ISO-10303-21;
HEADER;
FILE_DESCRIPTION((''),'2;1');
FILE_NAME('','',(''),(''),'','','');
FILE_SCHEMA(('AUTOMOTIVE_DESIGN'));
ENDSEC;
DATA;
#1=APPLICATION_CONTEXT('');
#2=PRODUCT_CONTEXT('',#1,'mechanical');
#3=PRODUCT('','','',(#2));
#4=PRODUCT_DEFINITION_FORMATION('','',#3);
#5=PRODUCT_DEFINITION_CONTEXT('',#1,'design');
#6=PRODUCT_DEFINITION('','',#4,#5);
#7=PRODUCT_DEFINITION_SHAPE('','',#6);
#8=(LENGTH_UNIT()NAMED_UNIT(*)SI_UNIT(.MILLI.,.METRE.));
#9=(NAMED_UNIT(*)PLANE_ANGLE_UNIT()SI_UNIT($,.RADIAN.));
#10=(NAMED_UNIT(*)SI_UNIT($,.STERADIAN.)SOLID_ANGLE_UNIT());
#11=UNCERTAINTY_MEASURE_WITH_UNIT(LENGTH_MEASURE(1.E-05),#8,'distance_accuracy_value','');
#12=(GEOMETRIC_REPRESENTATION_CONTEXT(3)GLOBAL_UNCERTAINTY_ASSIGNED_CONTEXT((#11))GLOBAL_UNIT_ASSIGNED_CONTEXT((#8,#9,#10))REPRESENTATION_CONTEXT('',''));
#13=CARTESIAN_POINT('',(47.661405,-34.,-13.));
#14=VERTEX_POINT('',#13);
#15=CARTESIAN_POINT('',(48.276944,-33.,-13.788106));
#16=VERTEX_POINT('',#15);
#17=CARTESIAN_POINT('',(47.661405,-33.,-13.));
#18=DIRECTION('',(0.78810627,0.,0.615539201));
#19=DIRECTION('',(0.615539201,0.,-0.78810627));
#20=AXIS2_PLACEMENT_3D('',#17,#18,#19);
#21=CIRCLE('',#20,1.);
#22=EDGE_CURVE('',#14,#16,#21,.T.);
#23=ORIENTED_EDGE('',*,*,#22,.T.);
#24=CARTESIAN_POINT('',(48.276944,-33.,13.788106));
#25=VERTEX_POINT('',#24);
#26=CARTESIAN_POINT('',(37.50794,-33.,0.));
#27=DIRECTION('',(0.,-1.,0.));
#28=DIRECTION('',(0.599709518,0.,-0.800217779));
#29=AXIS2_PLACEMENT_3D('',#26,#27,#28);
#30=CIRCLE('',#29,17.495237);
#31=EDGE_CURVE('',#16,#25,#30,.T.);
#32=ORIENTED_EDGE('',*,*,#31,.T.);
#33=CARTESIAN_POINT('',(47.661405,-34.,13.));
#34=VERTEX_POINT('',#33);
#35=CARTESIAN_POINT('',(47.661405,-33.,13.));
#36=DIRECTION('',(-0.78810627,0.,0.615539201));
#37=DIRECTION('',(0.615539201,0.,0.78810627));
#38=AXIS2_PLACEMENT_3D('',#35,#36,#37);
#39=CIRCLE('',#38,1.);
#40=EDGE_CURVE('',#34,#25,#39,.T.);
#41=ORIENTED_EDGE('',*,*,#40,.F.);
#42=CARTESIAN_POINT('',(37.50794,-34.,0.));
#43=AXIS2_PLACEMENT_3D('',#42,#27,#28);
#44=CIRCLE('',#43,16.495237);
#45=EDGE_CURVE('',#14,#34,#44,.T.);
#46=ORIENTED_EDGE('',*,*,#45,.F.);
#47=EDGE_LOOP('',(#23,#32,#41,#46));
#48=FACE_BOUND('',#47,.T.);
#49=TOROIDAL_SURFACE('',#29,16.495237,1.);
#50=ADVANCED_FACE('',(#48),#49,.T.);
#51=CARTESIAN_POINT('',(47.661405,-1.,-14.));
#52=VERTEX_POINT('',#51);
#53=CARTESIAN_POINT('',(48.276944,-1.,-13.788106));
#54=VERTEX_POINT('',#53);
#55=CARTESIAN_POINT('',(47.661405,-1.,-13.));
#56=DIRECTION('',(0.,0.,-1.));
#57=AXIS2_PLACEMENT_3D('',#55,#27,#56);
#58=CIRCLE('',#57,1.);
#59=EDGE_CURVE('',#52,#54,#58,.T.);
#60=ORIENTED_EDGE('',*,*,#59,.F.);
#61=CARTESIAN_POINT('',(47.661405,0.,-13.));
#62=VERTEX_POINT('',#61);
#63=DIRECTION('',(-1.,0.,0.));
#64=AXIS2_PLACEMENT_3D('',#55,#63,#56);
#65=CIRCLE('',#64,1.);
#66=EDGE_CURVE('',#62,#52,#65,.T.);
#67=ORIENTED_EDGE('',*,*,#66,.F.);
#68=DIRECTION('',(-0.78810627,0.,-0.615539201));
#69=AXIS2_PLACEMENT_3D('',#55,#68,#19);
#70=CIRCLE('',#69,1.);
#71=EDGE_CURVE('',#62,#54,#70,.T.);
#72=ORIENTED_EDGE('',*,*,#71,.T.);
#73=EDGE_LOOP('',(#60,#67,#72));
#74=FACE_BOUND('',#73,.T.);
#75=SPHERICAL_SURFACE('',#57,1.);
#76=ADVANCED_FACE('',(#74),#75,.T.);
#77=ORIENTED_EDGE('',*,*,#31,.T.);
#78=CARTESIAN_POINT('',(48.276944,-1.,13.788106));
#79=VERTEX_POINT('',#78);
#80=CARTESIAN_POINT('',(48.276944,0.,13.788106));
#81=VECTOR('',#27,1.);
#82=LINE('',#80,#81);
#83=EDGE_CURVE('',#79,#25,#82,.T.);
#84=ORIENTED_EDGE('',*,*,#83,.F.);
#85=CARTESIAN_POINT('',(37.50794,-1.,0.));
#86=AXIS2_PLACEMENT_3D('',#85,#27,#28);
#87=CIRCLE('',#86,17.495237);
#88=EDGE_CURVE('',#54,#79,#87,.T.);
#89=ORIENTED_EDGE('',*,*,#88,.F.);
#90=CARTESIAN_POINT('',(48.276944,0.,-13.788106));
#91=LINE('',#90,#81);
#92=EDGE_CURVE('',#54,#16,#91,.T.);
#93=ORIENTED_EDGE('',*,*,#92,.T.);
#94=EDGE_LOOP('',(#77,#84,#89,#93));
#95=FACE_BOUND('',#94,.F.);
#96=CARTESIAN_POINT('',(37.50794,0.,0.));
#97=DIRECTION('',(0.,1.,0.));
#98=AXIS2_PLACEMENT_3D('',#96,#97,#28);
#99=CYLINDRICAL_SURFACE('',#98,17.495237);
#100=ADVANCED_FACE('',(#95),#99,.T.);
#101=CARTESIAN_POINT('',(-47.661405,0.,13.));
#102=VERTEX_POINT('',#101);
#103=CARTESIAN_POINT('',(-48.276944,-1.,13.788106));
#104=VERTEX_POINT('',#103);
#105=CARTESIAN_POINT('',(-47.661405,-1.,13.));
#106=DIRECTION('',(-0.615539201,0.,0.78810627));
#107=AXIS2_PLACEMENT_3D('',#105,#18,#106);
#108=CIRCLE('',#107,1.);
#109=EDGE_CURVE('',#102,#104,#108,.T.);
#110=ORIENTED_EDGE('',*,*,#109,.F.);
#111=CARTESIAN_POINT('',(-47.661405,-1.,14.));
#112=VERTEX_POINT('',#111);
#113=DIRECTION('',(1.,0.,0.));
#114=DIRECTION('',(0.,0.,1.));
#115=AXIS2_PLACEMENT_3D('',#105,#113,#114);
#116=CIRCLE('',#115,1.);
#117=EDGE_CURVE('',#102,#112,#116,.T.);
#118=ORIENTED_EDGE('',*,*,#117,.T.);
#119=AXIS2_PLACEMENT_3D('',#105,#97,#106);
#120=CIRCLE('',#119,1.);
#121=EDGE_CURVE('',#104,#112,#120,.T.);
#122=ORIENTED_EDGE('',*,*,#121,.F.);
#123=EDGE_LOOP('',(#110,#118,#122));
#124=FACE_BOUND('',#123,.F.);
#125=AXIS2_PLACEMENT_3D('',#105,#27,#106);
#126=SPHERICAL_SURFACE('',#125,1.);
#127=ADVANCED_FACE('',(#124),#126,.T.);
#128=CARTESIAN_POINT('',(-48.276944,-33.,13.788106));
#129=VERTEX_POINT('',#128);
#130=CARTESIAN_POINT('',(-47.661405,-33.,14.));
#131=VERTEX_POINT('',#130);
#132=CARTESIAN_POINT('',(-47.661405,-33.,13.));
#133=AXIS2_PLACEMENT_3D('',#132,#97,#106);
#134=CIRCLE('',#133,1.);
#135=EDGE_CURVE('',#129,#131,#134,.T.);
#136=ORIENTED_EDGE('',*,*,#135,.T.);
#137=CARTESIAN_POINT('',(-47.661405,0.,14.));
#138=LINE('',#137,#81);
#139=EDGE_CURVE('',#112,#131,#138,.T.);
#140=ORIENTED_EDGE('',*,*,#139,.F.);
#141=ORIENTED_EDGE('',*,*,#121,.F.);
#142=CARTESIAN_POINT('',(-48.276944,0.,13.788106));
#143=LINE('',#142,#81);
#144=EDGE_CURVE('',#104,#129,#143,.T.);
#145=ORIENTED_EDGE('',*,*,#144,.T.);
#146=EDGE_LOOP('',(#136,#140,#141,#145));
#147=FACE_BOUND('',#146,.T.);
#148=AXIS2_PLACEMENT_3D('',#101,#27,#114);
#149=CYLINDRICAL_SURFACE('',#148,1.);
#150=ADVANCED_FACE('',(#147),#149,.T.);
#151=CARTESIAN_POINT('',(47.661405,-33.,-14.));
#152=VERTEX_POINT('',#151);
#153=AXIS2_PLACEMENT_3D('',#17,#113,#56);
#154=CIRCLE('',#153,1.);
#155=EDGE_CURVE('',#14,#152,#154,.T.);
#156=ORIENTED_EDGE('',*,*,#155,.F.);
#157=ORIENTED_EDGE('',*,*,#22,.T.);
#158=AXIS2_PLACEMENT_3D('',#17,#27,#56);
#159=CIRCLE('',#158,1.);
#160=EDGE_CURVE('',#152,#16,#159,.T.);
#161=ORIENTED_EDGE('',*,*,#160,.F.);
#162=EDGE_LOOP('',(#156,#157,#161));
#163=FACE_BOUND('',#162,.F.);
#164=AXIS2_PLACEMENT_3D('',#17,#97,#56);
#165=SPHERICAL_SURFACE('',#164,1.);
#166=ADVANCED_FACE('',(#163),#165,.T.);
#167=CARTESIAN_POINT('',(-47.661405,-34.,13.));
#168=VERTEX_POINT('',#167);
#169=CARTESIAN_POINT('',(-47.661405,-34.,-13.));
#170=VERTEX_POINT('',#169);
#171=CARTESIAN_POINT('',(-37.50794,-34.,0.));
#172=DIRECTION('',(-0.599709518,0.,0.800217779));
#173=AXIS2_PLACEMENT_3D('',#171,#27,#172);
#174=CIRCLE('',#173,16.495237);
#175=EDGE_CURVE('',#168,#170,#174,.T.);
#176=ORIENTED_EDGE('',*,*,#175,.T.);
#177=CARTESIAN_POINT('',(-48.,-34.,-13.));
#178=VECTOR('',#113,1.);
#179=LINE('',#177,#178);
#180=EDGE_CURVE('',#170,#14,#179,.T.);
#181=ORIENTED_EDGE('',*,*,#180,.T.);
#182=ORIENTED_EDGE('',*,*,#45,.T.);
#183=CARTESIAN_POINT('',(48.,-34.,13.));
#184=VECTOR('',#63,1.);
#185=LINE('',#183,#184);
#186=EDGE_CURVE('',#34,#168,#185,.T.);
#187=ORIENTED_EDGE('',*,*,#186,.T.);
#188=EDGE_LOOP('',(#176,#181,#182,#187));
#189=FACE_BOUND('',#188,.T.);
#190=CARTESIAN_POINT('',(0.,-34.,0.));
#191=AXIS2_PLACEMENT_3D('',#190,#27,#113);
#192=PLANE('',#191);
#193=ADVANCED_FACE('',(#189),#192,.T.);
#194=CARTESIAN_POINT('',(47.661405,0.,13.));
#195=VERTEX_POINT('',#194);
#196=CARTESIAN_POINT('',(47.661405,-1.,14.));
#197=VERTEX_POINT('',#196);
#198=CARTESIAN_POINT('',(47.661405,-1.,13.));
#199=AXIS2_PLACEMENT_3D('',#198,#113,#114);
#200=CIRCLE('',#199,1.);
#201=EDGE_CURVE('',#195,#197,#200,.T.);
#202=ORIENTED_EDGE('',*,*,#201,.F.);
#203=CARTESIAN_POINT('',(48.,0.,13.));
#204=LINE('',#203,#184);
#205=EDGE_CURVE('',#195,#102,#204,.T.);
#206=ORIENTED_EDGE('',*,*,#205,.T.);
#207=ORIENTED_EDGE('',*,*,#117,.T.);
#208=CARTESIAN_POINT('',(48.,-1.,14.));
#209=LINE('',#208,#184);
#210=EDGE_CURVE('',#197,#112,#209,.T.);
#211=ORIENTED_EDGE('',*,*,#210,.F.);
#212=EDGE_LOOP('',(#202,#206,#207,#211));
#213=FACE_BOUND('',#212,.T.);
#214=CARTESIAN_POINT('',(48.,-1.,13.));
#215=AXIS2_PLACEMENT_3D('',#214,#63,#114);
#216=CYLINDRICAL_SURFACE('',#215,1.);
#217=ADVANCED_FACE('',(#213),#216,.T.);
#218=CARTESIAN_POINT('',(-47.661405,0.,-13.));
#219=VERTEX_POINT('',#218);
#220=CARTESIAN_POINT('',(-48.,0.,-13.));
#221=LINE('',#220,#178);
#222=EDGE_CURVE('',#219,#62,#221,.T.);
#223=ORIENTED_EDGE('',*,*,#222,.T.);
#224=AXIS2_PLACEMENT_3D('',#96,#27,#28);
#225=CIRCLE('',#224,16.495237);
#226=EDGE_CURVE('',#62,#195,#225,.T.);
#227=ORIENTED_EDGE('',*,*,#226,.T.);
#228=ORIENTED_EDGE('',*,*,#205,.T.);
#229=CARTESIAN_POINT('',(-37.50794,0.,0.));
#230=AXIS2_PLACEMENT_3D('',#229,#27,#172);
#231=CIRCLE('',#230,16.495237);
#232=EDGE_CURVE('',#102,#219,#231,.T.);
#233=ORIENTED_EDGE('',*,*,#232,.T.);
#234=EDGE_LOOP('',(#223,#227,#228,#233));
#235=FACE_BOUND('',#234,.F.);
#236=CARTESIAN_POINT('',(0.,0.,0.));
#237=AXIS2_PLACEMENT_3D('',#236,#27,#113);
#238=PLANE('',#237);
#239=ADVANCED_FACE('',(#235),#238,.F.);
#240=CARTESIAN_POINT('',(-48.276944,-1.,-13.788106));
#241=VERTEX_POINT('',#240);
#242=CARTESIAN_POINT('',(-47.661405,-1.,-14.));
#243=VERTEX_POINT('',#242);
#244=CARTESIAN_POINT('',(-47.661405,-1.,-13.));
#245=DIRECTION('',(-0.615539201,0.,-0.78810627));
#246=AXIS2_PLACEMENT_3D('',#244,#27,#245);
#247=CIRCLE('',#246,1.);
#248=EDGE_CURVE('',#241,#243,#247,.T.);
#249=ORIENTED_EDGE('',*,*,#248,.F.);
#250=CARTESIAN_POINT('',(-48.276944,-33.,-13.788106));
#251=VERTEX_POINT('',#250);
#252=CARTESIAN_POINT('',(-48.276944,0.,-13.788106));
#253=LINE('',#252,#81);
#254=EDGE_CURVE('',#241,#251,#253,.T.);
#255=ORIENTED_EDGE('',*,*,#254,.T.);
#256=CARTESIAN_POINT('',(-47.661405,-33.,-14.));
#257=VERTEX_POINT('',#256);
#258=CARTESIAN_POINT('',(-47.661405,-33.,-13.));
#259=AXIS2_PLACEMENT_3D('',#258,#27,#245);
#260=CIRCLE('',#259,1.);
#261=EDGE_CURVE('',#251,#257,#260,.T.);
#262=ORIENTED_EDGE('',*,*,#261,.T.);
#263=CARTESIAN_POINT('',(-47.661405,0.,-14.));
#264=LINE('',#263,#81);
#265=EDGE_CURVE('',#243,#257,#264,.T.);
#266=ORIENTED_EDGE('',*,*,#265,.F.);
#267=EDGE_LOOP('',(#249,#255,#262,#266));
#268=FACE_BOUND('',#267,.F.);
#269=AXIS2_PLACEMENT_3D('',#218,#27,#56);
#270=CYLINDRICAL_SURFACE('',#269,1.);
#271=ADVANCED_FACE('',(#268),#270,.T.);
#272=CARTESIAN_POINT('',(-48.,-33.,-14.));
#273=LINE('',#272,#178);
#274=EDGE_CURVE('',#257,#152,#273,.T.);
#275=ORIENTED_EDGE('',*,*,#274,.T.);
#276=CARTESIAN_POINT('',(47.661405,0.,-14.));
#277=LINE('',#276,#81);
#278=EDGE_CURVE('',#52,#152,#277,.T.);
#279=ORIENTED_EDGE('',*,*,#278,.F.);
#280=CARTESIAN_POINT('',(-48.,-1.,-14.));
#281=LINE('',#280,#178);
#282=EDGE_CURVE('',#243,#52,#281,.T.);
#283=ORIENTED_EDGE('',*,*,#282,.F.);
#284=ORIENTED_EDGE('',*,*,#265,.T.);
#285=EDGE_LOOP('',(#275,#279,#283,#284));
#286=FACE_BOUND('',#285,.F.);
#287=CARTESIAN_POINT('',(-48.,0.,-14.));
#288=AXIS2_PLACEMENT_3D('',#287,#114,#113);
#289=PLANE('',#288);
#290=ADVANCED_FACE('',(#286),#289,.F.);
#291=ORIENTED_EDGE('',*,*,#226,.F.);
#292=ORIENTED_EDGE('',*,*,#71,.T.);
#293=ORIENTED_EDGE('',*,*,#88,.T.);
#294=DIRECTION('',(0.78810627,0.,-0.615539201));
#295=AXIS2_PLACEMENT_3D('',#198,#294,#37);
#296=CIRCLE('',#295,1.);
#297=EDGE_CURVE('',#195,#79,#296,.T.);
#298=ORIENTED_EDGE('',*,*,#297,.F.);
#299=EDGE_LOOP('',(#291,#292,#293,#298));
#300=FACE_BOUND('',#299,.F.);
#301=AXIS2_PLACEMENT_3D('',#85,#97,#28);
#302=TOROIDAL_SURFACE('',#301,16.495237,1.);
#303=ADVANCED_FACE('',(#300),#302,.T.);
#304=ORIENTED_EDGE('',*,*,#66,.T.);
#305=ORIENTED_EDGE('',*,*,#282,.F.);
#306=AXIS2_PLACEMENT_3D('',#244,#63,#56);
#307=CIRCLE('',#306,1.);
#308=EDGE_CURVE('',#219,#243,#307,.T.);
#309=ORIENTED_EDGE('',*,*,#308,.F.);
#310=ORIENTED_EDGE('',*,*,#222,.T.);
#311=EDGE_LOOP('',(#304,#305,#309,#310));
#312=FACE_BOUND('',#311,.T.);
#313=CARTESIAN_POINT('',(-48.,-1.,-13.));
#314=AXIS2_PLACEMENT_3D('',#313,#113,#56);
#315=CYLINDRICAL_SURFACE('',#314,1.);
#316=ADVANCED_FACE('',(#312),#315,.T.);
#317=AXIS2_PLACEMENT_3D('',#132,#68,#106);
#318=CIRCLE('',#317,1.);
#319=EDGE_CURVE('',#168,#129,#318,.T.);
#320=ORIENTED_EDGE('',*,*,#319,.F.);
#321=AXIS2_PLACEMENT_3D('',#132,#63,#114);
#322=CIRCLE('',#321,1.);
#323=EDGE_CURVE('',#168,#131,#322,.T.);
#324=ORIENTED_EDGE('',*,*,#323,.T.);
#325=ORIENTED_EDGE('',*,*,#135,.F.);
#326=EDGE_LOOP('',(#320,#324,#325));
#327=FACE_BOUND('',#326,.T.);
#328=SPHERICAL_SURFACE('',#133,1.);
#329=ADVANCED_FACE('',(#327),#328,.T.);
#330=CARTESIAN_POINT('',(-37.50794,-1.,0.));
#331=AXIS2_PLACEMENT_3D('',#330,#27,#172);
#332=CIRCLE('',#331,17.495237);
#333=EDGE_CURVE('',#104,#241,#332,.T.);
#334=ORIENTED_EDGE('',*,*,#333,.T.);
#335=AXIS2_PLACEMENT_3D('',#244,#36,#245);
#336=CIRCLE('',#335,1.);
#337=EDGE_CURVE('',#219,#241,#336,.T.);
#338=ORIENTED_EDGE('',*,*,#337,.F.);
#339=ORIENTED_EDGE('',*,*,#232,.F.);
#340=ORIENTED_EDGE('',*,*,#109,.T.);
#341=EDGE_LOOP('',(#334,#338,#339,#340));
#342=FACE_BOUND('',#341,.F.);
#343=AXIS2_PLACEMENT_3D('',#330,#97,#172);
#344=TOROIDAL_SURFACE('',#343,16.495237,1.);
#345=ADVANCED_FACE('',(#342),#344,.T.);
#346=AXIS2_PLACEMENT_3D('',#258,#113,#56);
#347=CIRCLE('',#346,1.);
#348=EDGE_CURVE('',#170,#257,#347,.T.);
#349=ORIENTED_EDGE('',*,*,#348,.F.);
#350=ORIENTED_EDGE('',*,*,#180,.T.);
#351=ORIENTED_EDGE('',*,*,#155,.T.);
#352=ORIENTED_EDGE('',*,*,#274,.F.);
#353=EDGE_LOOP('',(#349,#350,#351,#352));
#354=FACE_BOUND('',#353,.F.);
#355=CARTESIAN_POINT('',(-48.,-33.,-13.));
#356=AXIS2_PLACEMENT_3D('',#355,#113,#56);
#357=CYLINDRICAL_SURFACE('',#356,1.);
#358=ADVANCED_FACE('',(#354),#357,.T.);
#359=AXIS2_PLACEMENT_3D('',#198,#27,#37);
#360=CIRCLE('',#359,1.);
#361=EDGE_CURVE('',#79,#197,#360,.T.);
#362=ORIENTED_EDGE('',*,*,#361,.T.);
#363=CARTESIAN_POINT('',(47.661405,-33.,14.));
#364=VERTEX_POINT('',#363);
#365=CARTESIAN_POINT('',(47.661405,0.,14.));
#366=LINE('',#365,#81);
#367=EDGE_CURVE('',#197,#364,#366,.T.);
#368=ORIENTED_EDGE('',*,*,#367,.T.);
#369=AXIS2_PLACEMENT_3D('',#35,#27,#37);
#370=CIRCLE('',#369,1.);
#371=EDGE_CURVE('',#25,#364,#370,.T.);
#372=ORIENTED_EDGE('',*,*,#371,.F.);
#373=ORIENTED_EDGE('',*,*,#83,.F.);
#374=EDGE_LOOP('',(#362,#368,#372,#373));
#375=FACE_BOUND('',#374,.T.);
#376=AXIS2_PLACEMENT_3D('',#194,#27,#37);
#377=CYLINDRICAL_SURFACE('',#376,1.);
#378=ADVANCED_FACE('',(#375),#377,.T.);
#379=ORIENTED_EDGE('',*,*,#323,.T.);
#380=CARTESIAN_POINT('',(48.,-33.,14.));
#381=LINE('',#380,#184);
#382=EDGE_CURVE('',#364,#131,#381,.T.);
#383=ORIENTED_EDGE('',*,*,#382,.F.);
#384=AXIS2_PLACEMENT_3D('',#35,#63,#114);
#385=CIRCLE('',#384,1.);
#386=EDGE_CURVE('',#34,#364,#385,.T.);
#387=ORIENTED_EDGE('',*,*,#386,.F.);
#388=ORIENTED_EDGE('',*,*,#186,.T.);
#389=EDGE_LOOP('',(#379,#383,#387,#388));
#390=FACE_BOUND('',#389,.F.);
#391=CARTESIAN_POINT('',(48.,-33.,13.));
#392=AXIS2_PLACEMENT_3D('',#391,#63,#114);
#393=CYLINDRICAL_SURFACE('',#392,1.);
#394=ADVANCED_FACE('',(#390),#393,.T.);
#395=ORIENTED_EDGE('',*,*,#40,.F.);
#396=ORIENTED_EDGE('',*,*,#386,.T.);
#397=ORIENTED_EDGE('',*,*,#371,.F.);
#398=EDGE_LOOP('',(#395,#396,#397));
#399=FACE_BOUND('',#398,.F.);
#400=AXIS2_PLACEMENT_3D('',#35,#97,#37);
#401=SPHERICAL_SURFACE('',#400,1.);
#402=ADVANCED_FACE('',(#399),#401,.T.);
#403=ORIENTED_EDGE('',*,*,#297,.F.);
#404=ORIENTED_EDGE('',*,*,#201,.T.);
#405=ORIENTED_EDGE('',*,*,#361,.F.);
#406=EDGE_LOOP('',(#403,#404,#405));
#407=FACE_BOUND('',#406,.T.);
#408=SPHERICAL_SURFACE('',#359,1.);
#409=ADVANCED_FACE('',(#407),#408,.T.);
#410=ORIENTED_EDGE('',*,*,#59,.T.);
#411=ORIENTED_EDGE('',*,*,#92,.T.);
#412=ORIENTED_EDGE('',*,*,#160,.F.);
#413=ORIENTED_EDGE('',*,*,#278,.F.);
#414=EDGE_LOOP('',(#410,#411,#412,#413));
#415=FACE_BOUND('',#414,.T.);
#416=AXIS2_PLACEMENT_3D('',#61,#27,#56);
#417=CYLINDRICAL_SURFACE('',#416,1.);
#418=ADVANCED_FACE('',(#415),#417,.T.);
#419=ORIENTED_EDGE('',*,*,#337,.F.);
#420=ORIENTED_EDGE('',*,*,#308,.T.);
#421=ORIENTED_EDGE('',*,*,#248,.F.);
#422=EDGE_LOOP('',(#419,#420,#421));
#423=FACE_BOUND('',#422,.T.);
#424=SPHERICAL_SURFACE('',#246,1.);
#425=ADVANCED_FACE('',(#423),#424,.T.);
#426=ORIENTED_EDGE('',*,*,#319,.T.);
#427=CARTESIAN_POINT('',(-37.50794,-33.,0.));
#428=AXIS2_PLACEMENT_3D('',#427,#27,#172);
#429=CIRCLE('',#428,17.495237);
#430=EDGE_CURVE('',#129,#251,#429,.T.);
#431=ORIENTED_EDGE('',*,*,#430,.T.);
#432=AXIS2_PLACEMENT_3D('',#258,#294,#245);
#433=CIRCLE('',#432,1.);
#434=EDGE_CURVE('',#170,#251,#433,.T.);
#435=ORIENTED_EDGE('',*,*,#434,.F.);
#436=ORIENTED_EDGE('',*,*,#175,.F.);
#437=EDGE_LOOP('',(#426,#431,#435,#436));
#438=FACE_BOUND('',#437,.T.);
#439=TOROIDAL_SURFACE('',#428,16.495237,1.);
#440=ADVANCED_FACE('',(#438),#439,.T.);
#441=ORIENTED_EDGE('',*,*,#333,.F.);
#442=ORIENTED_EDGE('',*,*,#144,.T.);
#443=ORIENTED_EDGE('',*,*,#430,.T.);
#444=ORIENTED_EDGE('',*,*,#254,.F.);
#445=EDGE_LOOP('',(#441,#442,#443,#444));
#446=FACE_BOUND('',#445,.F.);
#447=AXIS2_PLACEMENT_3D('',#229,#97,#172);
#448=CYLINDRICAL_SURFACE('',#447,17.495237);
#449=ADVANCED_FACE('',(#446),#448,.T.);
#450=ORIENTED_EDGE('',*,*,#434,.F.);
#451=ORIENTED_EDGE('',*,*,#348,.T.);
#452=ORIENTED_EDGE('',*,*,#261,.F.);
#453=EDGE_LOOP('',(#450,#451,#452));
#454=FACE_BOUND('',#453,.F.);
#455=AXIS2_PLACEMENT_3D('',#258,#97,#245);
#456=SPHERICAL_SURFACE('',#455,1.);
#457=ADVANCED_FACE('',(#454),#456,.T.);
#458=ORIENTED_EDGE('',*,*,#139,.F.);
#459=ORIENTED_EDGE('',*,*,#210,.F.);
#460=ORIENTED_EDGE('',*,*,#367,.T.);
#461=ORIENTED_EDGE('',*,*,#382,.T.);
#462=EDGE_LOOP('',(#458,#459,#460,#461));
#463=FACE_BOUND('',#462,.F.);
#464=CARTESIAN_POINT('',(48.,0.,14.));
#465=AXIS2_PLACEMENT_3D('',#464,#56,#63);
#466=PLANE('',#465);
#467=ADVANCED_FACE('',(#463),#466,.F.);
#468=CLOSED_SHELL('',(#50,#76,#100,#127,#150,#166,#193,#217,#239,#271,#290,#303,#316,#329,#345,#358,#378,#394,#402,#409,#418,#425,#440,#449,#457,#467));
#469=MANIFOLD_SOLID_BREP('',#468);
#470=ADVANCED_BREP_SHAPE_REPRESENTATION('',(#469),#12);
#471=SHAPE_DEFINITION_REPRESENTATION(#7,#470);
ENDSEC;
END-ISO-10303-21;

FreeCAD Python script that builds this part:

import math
import FreeCAD as App
import Part
import Sketcher

V = App.Vector

doc = App.newDocument("Part")
body = doc.addObject("PartDesign::Body", "Body")

sketch1 = body.newObject("Sketcher::SketchObject", "Sketch")
sketch1.AttachmentSupport = (doc.getObject("XZ_Plane"), [""])
sketch1.MapMode = "FlatFace"
sketch1.addGeometry([
    Part.LineSegment(V(-48, -14, 0), V(48, -14, 0)),
    Part.ArcOfCircle(Part.Circle(V(38, 0, 0), V(0, 0, 1), 17), math.radians(-53), math.radians(53)),
    Part.LineSegment(V(48, 14, 0), V(-48, 14, 0)),
    Part.ArcOfCircle(Part.Circle(V(-38, 0, 0), V(0, 0, 1), 17), math.radians(127), math.radians(233)),
], False)
sketch1.addConstraint([
    Sketcher.Constraint("Coincident", 0, 2, 1, 1),
    Sketcher.Constraint("Coincident", 1, 2, 2, 1),
    Sketcher.Constraint("Coincident", 2, 2, 3, 1),
    Sketcher.Constraint("Coincident", 3, 2, 0, 1),
    Sketcher.Constraint("Horizontal", 0),
    Sketcher.Constraint("Horizontal", 2),
    Sketcher.Constraint("Equal", 1, 3),
    Sketcher.Constraint("Symmetric", 1, 3, 3, 3, -1, 1),
    Sketcher.Constraint("Symmetric", 0, 2, 1, 2, -1),
    Sketcher.Constraint("DistanceX", 0, 1, 0, 2, 96.0),
    Sketcher.Constraint("DistanceY", 0, 2, -1, 1, 14.0),
    Sketcher.Constraint("Radius", 1, 17.495237),
])
pad1 = body.newObject("PartDesign::Pad", "Pad")
pad1.Profile = sketch1
pad1.Length = 34
doc.recompute()

fillet = body.newObject("PartDesign::Fillet", "Fillet")
fillet.Base = (pad1, ["Edge1"])
fillet.UseAllEdges = True
fillet.Radius = 1

doc.recompute()
